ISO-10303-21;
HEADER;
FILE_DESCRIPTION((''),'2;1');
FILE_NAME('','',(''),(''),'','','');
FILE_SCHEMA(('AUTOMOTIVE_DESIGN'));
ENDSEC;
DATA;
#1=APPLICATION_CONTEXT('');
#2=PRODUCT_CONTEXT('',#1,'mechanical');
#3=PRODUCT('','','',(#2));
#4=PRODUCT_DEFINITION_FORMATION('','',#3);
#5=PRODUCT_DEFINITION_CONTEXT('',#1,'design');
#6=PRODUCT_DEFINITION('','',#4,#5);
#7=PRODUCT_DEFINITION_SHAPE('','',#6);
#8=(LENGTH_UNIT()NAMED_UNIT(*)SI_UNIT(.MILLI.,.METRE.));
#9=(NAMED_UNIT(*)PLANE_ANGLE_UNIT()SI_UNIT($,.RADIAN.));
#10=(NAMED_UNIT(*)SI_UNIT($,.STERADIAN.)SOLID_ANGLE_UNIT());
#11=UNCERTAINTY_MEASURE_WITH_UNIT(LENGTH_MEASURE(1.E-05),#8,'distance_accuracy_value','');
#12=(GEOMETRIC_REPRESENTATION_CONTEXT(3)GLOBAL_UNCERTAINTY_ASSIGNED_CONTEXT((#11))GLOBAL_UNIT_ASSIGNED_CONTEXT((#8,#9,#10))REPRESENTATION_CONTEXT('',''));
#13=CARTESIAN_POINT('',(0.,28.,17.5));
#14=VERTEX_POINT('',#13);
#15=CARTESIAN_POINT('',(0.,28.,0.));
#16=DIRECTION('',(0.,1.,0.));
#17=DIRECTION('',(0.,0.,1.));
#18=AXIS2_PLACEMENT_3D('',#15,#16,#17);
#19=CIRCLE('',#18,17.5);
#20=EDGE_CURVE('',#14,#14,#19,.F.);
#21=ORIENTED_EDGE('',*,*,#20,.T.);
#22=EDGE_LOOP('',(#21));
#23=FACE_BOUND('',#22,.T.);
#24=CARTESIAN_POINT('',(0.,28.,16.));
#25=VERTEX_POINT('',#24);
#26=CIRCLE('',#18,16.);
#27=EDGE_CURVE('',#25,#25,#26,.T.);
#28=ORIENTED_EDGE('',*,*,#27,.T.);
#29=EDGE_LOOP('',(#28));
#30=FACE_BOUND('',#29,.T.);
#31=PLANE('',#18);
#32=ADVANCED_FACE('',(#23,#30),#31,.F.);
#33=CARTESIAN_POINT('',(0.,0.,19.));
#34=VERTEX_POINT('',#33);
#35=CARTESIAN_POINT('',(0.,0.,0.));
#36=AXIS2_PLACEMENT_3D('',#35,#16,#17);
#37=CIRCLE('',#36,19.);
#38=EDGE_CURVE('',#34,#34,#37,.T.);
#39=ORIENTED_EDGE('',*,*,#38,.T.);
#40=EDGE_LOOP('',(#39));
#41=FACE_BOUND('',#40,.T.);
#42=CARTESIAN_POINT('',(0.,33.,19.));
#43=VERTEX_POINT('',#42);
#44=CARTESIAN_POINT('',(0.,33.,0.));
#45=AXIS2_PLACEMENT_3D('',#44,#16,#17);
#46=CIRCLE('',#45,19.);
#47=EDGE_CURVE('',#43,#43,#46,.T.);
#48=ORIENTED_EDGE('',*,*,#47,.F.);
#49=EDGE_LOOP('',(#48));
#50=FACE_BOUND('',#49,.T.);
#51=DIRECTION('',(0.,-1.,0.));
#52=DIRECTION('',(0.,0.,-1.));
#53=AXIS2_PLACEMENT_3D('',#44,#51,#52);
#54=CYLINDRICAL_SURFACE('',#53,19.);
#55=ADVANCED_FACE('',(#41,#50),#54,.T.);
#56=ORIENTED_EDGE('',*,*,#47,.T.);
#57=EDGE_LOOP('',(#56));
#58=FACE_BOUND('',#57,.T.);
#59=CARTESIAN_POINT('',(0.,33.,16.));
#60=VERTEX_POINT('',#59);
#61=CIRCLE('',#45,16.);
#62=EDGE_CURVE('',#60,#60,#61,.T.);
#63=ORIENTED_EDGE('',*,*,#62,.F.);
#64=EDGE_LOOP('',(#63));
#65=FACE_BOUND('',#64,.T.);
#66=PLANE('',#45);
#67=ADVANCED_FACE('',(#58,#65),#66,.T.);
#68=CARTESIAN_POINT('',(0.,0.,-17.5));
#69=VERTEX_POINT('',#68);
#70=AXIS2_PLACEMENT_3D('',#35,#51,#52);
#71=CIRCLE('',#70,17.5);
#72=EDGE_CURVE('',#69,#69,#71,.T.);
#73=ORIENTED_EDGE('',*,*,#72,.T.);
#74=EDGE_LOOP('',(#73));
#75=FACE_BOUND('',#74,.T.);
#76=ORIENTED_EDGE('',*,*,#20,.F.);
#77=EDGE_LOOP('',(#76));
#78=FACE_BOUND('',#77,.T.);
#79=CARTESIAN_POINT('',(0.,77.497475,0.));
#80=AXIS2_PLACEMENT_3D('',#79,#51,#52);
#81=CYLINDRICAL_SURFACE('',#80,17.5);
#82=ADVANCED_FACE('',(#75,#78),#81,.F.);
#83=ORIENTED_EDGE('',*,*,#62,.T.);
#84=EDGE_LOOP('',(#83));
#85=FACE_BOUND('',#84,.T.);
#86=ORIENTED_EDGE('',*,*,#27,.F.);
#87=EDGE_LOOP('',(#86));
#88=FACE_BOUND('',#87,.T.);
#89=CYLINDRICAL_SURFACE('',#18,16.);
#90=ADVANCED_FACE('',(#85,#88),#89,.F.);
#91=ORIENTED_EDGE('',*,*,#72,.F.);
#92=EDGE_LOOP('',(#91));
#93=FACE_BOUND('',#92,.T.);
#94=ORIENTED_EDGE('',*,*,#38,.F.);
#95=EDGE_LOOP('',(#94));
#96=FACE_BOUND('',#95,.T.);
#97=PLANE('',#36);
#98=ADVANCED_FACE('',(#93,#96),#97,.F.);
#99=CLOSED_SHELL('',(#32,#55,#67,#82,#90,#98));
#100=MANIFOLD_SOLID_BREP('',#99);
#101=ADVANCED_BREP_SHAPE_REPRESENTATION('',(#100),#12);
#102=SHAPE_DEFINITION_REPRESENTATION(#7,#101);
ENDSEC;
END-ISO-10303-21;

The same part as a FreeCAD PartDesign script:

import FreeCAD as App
import Part
import Sketcher

doc = App.newDocument("Part")
body = doc.addObject("PartDesign::Body", "Body")

sketch1 = body.newObject("Sketcher::SketchObject", "Sketch")
sketch1.AttachmentSupport = (doc.getObject("XZ_Plane"), [""])
sketch1.MapMode = "FlatFace"
sketch1.addGeometry(Part.Circle(App.Vector(0, 0, 0), App.Vector(0, 0, 1), 19), False)
sketch1.addConstraint(Sketcher.Constraint("Coincident", 0, 3, -1, 1))
sketch1.addConstraint(Sketcher.Constraint("Diameter", 0, 38.0))
pad1 = body.newObject("PartDesign::Pad", "Pad")
pad1.Profile = sketch1
pad1.Length = 33
pad1.Reversed = True

sketch2 = body.newObject("Sketcher::SketchObject", "Sketch001")
sketch2.AttachmentSupport = (doc.getObject("XZ_Plane"), [""])
sketch2.MapMode = "FlatFace"
sketch2.AttachmentOffset = App.Placement(App.Vector(0, 0, -33), App.Rotation())
sketch2.addGeometry(Part.Circle(App.Vector(0, 0, 0), App.Vector(0, 0, 1), 16), False)
sketch2.addConstraint(Sketcher.Constraint("Coincident", 0, 3, -1, 1))
sketch2.addConstraint(Sketcher.Constraint("Diameter", 0, 32.0))
pocket1 = body.newObject("PartDesign::Pocket", "Pocket")
pocket1.Profile = sketch2
pocket1.Length = 5
pocket1.Reversed = True

sketch3 = body.newObject("Sketcher::SketchObject", "Sketch002")
sketch3.AttachmentSupport = (doc.getObject("XZ_Plane"), [""])
sketch3.MapMode = "FlatFace"
sketch3.addGeometry(Part.Circle(App.Vector(0, 0, 0), App.Vector(0, 0, 1), 18), False)
sketch3.addConstraint(Sketcher.Constraint("Coincident", 0, 3, -1, 1))
sketch3.addConstraint(Sketcher.Constraint("Diameter", 0, 35.0))
pocket2 = body.newObject("PartDesign::Pocket", "Pocket001")
pocket2.Profile = sketch3
pocket2.Length = 28

doc.recompute()
